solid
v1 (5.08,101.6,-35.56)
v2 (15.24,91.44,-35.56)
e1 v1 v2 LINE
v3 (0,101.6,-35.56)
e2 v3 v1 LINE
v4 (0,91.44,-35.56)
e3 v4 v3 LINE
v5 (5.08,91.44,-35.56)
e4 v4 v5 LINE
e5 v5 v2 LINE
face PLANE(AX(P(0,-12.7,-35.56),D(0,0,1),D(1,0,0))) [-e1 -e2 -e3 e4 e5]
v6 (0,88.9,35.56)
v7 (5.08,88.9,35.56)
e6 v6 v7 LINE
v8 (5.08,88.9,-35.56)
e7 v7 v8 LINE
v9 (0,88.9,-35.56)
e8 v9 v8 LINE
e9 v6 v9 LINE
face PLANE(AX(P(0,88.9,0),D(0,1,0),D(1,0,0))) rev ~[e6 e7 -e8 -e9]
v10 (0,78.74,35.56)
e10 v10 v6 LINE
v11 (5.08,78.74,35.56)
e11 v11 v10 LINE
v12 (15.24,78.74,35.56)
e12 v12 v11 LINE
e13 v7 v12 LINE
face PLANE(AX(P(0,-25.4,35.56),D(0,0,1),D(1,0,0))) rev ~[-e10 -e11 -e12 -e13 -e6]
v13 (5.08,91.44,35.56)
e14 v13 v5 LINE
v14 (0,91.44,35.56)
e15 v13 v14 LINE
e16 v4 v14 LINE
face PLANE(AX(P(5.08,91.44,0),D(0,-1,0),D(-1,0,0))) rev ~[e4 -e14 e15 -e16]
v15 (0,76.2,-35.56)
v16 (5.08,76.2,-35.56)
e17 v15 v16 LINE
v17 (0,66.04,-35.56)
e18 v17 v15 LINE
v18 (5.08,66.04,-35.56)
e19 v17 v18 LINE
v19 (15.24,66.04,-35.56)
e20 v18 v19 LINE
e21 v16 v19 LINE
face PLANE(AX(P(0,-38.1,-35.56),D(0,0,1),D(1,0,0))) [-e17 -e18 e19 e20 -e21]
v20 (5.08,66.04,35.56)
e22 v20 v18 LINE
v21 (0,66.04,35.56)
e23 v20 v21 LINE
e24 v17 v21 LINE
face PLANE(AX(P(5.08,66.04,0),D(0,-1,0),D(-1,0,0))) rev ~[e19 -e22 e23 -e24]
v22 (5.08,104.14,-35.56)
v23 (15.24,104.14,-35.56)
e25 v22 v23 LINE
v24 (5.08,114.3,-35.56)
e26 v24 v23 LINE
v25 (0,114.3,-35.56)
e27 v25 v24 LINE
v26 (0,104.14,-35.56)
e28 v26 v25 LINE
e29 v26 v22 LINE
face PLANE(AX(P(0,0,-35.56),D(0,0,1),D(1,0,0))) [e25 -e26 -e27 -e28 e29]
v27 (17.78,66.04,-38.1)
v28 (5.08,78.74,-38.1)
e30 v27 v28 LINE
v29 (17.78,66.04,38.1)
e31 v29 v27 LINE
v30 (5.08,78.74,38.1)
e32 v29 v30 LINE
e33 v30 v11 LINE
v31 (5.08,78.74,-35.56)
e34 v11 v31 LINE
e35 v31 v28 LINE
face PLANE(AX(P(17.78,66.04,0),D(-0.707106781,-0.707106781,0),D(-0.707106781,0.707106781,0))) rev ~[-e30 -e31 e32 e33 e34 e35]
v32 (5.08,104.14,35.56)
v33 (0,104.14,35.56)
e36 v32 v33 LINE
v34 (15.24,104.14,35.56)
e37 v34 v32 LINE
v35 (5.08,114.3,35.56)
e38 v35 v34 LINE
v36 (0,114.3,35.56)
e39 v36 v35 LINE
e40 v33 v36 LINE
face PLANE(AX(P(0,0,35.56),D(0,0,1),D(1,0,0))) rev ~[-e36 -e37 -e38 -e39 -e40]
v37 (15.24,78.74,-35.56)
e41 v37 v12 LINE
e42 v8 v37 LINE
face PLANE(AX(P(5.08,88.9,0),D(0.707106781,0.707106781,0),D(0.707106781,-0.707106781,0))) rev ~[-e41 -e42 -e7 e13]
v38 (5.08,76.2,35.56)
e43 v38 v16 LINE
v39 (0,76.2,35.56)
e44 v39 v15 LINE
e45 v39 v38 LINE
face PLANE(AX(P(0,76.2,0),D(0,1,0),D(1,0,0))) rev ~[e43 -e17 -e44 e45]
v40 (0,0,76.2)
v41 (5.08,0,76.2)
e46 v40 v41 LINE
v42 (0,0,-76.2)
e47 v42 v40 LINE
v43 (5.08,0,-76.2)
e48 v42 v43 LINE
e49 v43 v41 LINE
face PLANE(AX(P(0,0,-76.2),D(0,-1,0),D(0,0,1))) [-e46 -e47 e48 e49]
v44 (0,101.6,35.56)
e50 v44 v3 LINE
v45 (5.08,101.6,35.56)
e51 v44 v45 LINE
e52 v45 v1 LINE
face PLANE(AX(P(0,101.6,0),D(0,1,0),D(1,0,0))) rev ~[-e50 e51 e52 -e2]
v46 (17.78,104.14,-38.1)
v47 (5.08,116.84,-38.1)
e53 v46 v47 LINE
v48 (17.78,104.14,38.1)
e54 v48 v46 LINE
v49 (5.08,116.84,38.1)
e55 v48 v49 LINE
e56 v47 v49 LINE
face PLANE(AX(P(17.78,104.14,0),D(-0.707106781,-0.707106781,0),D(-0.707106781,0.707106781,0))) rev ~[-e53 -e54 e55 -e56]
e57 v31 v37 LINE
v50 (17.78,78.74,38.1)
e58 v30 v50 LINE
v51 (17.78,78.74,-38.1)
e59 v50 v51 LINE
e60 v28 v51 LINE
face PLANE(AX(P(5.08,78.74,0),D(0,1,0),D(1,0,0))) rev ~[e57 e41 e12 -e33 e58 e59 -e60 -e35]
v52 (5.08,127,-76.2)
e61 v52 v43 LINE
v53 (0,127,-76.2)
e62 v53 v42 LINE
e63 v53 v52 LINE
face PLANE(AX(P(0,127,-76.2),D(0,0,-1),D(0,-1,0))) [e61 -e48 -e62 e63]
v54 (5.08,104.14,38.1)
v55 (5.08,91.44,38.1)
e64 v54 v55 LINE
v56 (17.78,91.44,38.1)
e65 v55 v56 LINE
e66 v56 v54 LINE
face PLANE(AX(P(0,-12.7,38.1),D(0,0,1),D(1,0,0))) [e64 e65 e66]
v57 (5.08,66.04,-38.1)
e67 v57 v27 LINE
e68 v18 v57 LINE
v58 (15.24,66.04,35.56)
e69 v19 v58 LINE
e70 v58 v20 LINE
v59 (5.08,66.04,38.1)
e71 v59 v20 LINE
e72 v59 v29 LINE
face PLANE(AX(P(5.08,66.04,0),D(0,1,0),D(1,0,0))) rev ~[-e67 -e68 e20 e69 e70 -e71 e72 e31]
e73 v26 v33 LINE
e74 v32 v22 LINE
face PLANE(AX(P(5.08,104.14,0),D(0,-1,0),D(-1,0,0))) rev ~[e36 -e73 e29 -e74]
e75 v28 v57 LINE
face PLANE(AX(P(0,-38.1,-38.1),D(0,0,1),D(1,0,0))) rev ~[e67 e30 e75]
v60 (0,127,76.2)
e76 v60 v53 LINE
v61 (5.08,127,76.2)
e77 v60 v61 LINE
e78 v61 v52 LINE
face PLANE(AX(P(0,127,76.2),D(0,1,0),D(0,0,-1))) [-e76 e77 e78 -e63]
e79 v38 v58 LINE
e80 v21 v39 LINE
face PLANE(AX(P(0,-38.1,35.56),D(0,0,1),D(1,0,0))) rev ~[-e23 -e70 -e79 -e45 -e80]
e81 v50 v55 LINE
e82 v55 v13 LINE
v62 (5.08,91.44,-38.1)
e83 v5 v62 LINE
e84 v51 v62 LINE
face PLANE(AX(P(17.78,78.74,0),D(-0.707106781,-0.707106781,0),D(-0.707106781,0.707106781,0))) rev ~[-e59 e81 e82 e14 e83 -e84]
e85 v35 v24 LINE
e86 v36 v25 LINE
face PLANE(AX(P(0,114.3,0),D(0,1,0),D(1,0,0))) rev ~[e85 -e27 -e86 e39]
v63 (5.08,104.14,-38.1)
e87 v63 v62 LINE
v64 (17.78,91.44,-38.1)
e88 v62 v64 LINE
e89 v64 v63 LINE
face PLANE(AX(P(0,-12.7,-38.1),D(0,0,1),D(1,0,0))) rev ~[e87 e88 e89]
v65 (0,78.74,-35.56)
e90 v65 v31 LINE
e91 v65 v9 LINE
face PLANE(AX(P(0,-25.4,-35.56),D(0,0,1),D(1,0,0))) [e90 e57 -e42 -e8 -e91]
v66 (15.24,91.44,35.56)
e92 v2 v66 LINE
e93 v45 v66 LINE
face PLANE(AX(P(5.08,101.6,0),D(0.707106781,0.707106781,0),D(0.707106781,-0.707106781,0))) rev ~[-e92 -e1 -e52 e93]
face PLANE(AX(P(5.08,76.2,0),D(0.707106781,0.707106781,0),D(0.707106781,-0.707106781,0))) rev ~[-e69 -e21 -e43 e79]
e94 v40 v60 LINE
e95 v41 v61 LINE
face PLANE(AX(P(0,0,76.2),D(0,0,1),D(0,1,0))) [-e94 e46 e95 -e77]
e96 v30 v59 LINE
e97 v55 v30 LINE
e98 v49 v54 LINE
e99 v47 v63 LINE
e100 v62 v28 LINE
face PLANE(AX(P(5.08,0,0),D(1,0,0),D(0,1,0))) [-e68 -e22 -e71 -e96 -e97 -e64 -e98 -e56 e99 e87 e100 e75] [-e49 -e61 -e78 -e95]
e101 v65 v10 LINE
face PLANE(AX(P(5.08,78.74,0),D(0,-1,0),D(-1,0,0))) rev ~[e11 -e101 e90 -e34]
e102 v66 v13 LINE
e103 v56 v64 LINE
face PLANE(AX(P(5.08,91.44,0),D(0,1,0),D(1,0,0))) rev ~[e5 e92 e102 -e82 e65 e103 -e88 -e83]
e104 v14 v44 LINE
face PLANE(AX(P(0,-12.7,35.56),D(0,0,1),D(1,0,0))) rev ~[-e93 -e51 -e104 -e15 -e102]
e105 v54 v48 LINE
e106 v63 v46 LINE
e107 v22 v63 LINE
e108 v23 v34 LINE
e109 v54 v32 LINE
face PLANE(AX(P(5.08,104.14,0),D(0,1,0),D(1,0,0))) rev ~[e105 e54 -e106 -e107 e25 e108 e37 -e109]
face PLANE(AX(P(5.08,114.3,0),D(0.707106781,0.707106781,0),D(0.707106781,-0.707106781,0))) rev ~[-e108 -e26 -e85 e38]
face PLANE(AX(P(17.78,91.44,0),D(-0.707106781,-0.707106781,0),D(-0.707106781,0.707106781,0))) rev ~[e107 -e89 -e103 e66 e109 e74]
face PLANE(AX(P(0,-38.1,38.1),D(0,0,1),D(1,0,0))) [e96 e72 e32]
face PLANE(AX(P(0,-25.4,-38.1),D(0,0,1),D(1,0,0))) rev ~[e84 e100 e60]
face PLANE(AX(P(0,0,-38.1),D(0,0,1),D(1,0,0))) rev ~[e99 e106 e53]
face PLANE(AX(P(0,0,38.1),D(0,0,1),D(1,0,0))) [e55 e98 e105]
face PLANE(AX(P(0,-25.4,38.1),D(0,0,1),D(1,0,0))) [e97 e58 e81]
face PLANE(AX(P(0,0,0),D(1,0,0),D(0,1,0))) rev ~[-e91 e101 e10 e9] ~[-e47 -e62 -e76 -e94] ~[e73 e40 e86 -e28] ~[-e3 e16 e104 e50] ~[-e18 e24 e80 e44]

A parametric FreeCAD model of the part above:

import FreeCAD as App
import Part
import Sketcher

V = App.Vector
Q = App.Units.Quantity

doc = App.newDocument("Part")
body = doc.addObject("PartDesign::Body", "Body")

sketch1 = body.newObject("Sketcher::SketchObject", "Sketch")
sketch1.AttachmentSupport = (doc.getObject("YZ_Plane"), [""])
sketch1.MapMode = "FlatFace"
sketch1.addGeometry([
    Part.LineSegment(V(127, 76, 0), V(0, 76, 0)),
    Part.LineSegment(V(0, 76, 0), V(0, -76, 0)),
    Part.LineSegment(V(0, -76, 0), V(127, -76, 0)),
    Part.LineSegment(V(127, -76, 0), V(127, 76, 0)),
], False)
sketch1.addConstraint([
    Sketcher.Constraint("Coincident", 0, 2, 1, 1),
    Sketcher.Constraint("Coincident", 1, 2, 2, 1),
    Sketcher.Constraint("Coincident", 2, 2, 3, 1),
    Sketcher.Constraint("Coincident", 3, 2, 0, 1),
    Sketcher.Constraint("Horizontal", 0),
    Sketcher.Constraint("Vertical", 1),
    Sketcher.Constraint("Horizontal", 2),
    Sketcher.Constraint("Vertical", 3),
    Sketcher.Constraint("Symmetric", 0, 2, 1, 2, -1, 1),
    Sketcher.Constraint("DistanceX", 0, 2, 0, 1, Q("5 in")),
    Sketcher.Constraint("DistanceY", 1, 2, 1, 1, Q("6 in")),
])
pad1 = body.newObject("PartDesign::Pad", "Pad")
pad1.Profile = sketch1
pad1.Length = Q("0.2 in")

sketch2 = body.newObject("Sketcher::SketchObject", "Sketch001")
sketch2.AttachmentSupport = (doc.getObject("XY_Plane"), [""])
sketch2.MapMode = "FlatFace"
sketch2.addGeometry([
    Part.LineSegment(V(18, 104, 0), V(5, 117, 0)),
    Part.LineSegment(V(5, 117, 0), V(5, 104, 0)),
    Part.LineSegment(V(5, 104, 0), V(18, 104, 0)),
], False)
sketch2.addConstraint([
    Sketcher.Constraint("Coincident", 0, 2, 1, 1),
    Sketcher.Constraint("Coincident", 1, 2, 2, 1),
    Sketcher.Constraint("Coincident", 2, 2, 0, 1),
    Sketcher.Constraint("Vertical", 1),
    Sketcher.Constraint("Horizontal", 2),
    Sketcher.Constraint("Equal", 2, 1),
    Sketcher.Constraint("DistanceX", 2, 1, 2, 2, Q("0.5 in")),
    Sketcher.Constraint("DistanceX", -1, 1, 0, 2, Q("0.2 in")),
    Sketcher.Constraint("DistanceY", -1, 1, 0, 2, Q("4.6 in")),
])
pad2 = body.newObject("PartDesign::Pad", "Pad001")
pad2.Profile = sketch2
pad2.Length = Q("3 in")
pad2.Midplane = True

sketch3 = body.newObject("Sketcher::SketchObject", "Sketch002")
sketch3.AttachmentSupport = (doc.getObject("XY_Plane"), [""])
sketch3.MapMode = "FlatFace"
sketch3.addGeometry([
    Part.LineSegment(V(0, 114, 0), V(0, 104, 0)),
    Part.LineSegment(V(0, 104, 0), V(15, 104, 0)),
    Part.LineSegment(V(15, 104, 0), V(5, 114, 0)),
    Part.LineSegment(V(5, 114, 0), V(0, 114, 0)),
], False)
sketch3.addConstraint([
    Sketcher.Constraint("Coincident", 0, 2, 1, 1),
    Sketcher.Constraint("Coincident", 1, 2, 2, 1),
    Sketcher.Constraint("Coincident", 2, 2, 3, 1),
    Sketcher.Constraint("Coincident", 3, 2, 0, 1),
    Sketcher.Constraint("Vertical", 0),
    Sketcher.Constraint("Horizontal", 1),
    Sketcher.Constraint("Horizontal", 3),
    Sketcher.Constraint("PointOnObject", 0, 2, -2),
    Sketcher.Constraint("DistanceY", 0, 2, 0, 1, Q("0.4 in")),
    Sketcher.Constraint("DistanceX", 2, 2, 1, 2, Q("0.4 in")),
    Sketcher.Constraint("DistanceX", 1, 1, 1, 2, Q("0.6 in")),
    Sketcher.Constraint("DistanceY", -1, 1, 0, 2, Q("4.1 in")),
])
pocket1 = body.newObject("PartDesign::Pocket", "Pocket")
pocket1.Profile = sketch3
pocket1.Length = Q("2.8 in")
pocket1.Midplane = True
doc.recompute()

linearpattern = body.newObject("PartDesign::LinearPattern", "LinearPattern")
linearpattern.Originals = [pad2, pocket1]
linearpattern.Direction = (doc.getObject("Y_Axis"), [""])
linearpattern.Mode = "offset"
linearpattern.Offset = Q("0.5 in")
linearpattern.Occurrences = 4
linearpattern.Reversed = True
body.Tip = linearpattern

doc.recompute()
